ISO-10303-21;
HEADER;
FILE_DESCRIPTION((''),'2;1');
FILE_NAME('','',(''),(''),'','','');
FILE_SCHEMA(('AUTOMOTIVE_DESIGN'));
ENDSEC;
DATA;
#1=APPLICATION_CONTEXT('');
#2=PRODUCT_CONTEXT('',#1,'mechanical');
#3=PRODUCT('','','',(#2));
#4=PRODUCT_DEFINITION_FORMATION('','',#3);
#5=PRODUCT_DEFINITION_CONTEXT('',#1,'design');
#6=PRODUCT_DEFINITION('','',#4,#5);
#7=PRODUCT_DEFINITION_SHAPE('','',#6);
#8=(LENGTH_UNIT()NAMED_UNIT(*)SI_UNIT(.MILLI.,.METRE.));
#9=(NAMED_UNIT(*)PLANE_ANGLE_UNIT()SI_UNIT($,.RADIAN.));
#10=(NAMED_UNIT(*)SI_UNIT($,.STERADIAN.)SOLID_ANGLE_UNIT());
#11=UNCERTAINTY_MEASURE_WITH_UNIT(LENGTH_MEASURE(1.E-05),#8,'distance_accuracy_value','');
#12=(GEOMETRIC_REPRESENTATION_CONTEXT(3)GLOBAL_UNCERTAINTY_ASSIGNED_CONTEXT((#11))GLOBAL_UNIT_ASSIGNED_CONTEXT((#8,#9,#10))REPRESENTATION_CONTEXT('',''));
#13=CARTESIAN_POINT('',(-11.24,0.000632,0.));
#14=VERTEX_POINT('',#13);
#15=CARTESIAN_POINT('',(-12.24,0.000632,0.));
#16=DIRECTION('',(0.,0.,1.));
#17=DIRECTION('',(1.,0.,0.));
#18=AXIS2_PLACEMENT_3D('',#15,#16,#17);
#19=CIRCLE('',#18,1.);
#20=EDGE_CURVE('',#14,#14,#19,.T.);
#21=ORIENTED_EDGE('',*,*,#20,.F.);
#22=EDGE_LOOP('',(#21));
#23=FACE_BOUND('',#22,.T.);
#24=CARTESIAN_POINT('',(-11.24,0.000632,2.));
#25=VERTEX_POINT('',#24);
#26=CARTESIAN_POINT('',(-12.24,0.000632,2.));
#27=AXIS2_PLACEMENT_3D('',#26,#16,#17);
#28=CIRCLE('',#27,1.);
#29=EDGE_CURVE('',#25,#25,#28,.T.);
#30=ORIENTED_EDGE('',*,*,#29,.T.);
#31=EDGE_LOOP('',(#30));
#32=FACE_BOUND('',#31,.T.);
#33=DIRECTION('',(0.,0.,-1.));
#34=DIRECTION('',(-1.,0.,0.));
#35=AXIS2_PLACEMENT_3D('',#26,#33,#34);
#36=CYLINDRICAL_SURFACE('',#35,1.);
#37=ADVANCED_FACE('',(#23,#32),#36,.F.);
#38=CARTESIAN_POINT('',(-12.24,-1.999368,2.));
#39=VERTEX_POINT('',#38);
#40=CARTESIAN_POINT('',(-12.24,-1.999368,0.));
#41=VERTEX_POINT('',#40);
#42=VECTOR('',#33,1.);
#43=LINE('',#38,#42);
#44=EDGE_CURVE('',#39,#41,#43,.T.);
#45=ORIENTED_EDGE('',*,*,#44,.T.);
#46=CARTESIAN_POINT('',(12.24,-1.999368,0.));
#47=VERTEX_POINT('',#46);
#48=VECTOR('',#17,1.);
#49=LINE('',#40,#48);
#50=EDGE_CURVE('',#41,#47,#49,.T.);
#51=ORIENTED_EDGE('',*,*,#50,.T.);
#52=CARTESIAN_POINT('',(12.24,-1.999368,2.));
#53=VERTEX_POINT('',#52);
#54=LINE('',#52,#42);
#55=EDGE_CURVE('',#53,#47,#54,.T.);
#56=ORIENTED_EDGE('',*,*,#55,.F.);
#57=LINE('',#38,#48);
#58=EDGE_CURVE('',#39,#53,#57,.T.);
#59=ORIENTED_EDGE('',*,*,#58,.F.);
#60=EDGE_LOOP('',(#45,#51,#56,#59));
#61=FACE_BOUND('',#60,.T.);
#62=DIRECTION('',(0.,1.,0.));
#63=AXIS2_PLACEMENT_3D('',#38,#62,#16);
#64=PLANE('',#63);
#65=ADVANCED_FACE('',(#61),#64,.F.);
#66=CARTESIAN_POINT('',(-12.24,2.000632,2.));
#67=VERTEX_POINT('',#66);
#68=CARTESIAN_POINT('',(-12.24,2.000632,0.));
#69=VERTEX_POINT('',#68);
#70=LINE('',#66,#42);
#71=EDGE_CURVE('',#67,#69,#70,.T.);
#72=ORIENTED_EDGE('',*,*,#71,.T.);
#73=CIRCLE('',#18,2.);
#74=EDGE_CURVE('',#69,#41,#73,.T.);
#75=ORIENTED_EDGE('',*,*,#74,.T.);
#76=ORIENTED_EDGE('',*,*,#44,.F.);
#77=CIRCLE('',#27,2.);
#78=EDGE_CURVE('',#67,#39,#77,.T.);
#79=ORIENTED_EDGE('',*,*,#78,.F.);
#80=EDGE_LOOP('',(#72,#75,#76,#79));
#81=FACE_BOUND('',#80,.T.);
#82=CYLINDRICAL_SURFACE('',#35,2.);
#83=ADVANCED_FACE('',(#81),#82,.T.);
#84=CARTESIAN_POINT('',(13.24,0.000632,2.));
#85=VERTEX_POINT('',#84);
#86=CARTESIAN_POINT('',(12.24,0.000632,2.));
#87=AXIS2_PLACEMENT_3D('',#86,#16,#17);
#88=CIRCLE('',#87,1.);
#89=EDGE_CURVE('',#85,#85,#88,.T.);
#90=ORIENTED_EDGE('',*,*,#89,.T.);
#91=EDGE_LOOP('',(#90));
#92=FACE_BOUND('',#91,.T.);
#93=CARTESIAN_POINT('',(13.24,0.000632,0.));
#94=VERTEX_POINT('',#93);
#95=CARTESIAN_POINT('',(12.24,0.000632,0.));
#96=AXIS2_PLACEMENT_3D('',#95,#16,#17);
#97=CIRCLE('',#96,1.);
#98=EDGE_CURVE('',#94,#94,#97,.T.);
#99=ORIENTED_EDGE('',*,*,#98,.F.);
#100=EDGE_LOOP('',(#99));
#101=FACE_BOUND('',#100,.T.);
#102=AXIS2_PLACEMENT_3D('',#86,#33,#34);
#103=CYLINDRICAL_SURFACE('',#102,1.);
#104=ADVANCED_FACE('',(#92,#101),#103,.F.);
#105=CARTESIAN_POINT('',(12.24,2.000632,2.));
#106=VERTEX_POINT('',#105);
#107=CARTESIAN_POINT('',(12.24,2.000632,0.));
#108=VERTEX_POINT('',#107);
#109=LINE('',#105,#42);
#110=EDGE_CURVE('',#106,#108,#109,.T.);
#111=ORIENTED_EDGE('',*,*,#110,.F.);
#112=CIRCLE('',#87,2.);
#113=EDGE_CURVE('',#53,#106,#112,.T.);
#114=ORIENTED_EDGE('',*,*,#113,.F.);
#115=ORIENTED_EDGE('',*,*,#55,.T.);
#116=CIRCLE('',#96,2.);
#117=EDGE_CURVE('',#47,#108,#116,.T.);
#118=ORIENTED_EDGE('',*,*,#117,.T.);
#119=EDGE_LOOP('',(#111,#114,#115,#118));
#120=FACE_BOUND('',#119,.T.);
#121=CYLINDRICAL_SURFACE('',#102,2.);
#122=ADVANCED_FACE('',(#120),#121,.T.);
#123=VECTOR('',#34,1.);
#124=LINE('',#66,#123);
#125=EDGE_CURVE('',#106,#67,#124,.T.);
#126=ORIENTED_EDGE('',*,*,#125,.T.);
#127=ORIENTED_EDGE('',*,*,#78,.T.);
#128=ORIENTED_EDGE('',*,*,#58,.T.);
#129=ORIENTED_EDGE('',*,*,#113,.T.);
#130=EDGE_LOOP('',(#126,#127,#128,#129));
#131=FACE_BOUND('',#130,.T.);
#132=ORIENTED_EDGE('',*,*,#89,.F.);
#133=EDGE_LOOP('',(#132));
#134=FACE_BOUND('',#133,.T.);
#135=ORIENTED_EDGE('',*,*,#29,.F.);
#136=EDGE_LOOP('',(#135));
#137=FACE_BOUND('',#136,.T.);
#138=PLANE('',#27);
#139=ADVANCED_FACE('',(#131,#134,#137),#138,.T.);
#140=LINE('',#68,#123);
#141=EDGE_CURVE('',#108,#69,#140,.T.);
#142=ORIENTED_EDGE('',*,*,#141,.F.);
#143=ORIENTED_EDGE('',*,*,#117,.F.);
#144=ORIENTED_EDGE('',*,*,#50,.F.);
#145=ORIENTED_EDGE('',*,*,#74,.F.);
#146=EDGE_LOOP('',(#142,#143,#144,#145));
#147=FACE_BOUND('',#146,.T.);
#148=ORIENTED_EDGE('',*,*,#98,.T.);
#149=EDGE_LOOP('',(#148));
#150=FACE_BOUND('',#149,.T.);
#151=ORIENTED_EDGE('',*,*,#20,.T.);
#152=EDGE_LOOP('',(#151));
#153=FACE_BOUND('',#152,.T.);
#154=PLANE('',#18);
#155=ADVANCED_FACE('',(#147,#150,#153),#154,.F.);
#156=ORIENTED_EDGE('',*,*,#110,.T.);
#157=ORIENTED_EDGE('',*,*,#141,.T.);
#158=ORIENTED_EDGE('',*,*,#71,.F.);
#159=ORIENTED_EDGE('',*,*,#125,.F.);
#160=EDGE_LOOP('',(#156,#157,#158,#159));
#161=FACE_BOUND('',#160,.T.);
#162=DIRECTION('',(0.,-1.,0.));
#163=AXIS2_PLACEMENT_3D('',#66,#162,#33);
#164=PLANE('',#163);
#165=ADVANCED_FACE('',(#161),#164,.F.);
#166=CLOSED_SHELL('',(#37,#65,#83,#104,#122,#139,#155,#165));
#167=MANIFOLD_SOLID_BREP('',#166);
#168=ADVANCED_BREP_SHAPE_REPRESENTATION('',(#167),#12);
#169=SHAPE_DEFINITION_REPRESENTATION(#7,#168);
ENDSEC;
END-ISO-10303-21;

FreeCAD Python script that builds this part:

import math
import FreeCAD as App
import Part
import Sketcher

V = App.Vector
Q = App.Units.Quantity

doc = App.newDocument("Part")
body = doc.addObject("PartDesign::Body", "Body")

# Sketch on XY plane
sketch1 = body.newObject("Sketcher::SketchObject", "Sketch")
sketch1.AttachmentSupport = (doc.getObject("XY_Plane"), [""])
sketch1.MapMode = "FlatFace"
sketch1.addGeometry([
    Part.LineSegment(V(12.2, 2, 0), V(-12.2, 2, 0)),  # 0
    Part.ArcOfCircle(Part.Circle(V(-12.2, 0, 0), V(0, 0, 1), 2), math.radians(90), math.radians(270)),  # 1
    Part.LineSegment(V(-12.2, -2, 0), V(12.2, -2, 0)),  # 2
    Part.ArcOfCircle(Part.Circle(V(12.2, 0, 0), V(0, 0, 1), 2), math.radians(-90), math.radians(90)),  # 3
    Part.Circle(V(12.2, 0, 0), V(0, 0, 1), 1),  # 4
    Part.Circle(V(-12.2, 0, 0), V(0, 0, 1), 1),  # 5
], False)
sketch1.addConstraint([
    Sketcher.Constraint("Tangent", 0, 2, 1, 1),
    Sketcher.Constraint("Tangent", 1, 2, 2, 1),
    Sketcher.Constraint("Tangent", 2, 2, 3, 1),
    Sketcher.Constraint("Tangent", 3, 2, 0, 1),
    Sketcher.Constraint("Horizontal", 0),
    Sketcher.Constraint("Horizontal", 2),
    Sketcher.Constraint("Coincident", 4, 3, 3, 3),
    Sketcher.Constraint("Coincident", 5, 3, 1, 3),
    Sketcher.Constraint("Equal", 4, 5),
    Sketcher.Constraint("Diameter", 4, Q("2 mm")),
    Sketcher.Constraint("Radius", 1, Q("2 mm")),
    Sketcher.Constraint("DistanceX", 0, 2, 0, 1, Q("24.48 mm")),
    Sketcher.Constraint("DistanceX", 1, 3, -1, 1, Q("12.24 mm")),
    Sketcher.Constraint("DistanceY", -1, 1, 1, 3, Q("0.000632 mm")),
])
pad1 = body.newObject("PartDesign::Pad", "Pad")
pad1.Profile = sketch1
pad1.Length = 2

doc.recompute()
